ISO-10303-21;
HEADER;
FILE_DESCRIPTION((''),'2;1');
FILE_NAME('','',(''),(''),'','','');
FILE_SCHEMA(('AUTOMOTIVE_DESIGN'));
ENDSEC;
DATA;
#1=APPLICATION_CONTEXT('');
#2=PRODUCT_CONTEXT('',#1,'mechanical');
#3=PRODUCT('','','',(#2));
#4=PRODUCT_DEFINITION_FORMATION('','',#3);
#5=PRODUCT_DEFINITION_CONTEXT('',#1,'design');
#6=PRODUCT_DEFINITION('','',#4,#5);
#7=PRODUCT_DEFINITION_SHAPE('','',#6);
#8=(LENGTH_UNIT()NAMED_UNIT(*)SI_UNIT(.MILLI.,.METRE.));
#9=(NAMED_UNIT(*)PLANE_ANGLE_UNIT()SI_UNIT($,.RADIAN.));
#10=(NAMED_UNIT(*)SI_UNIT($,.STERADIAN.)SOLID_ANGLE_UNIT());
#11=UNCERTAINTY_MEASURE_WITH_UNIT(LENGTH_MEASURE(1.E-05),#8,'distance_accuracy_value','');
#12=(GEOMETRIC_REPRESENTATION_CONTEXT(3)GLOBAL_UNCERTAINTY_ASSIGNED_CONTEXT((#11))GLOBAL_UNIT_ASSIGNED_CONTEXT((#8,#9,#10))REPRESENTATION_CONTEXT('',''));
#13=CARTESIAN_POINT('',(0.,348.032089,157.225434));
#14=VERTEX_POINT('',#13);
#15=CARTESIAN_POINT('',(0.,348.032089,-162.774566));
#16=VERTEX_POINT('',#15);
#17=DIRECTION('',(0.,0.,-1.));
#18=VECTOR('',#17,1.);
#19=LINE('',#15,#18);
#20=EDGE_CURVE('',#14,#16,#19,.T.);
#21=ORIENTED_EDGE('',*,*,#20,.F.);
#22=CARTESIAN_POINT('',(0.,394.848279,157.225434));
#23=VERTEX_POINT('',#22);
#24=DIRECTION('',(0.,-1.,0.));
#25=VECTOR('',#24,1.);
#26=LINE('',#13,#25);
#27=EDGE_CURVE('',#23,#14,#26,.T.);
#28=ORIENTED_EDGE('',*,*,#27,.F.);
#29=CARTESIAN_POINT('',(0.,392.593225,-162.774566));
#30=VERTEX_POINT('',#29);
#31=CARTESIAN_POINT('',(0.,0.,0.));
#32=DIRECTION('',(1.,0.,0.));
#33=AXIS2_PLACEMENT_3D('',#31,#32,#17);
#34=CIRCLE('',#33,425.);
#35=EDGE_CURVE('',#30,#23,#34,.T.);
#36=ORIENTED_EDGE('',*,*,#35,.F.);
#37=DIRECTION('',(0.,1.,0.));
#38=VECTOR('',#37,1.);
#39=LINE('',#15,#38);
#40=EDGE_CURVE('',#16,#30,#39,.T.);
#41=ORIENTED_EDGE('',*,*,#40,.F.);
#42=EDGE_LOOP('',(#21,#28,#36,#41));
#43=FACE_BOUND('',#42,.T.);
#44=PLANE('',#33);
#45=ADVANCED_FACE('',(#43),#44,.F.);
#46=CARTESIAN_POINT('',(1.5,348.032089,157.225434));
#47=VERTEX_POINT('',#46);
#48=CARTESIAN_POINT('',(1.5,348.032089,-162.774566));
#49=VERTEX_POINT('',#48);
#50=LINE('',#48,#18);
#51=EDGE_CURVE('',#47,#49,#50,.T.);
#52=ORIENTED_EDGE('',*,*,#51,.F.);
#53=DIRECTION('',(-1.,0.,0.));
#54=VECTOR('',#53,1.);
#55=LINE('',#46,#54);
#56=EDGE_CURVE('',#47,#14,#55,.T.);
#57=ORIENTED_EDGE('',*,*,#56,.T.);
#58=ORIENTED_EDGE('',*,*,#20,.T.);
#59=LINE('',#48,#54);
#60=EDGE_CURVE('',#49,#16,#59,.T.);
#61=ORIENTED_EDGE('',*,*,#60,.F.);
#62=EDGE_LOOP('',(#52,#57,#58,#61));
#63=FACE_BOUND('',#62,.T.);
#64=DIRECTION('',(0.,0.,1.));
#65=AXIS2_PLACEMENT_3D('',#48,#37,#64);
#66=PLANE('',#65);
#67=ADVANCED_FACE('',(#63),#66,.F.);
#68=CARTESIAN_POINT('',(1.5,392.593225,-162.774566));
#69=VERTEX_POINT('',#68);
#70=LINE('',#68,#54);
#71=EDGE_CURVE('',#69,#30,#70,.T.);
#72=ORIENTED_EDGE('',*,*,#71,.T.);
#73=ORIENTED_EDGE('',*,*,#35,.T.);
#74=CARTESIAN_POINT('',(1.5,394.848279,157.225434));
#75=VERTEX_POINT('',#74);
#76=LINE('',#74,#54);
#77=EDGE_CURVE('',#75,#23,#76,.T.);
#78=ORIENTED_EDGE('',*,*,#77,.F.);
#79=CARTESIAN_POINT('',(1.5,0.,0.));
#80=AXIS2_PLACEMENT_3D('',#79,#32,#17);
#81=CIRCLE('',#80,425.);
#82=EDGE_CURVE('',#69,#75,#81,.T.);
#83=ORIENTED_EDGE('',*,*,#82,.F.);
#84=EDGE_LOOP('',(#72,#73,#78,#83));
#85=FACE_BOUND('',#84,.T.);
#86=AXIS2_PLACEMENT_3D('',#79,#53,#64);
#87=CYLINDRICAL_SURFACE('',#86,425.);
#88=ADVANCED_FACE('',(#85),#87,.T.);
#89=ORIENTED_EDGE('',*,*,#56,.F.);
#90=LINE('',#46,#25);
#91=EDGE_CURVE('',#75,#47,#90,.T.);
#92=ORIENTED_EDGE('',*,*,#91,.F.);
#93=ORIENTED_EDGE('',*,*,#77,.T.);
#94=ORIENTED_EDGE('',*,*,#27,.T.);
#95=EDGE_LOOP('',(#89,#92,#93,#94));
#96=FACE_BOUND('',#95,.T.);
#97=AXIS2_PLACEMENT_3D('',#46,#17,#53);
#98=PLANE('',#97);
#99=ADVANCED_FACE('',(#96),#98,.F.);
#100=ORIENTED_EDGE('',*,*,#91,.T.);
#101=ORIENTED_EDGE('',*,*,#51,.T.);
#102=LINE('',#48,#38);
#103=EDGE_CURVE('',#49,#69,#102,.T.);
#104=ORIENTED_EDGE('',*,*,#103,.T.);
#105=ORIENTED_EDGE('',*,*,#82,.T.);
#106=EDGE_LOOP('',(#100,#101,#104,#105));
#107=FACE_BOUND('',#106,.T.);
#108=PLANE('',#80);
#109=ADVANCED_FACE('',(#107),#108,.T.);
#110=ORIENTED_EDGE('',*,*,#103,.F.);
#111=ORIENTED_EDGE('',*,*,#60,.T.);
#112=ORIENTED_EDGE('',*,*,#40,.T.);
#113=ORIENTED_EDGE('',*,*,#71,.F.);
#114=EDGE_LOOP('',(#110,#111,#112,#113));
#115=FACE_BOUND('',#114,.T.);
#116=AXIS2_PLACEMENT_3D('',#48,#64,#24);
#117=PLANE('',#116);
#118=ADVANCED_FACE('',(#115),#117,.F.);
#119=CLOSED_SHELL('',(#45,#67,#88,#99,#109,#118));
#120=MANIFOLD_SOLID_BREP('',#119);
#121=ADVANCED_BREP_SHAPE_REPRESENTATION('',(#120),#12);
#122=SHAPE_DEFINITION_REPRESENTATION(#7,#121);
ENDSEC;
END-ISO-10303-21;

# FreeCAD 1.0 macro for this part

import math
import FreeCAD as App
import Part
import Sketcher

doc = App.newDocument("Part")
body = doc.addObject("PartDesign::Body", "Body")

sketch1 = body.newObject("Sketcher::SketchObject", "Sketch")
sketch1.AttachmentSupport = (doc.getObject("YZ_Plane"), [""])
sketch1.MapMode = "FlatFace"
sketch1.addGeometry([
    Part.LineSegment(App.Vector(348, 157, 0), App.Vector(348, -163, 0)),
    Part.LineSegment(App.Vector(348, -163, 0), App.Vector(393, -163, 0)),
    Part.ArcOfCircle(Part.Circle(App.Vector(0, 0, 0), App.Vector(0, 0, 1), 425), math.radians(-23), math.radians(22)),
    Part.LineSegment(App.Vector(395, 157, 0), App.Vector(348, 157, 0)),
], False)
sketch1.addConstraint([
    Sketcher.Constraint("Coincident", 0, 2, 1, 1),
    Sketcher.Constraint("Coincident", 1, 2, 2, 1),
    Sketcher.Constraint("Coincident", 2, 2, 3, 1),
    Sketcher.Constraint("Coincident", 3, 2, 0, 1),
    Sketcher.Constraint("Vertical", 0),
    Sketcher.Constraint("Horizontal", 1),
    Sketcher.Constraint("Horizontal", 3),
    Sketcher.Constraint("Coincident", 2, 3, -1, 1),
    Sketcher.Constraint("Radius", 2, 425.0),
    Sketcher.Constraint("DistanceY", 0, 2, 0, 1, 320.0),
    Sketcher.Constraint("DistanceX", 3, 2, 3, 1, 46.816189),
    Sketcher.Constraint("DistanceX", 1, 1, 1, 2, 44.561136),
])
pad1 = body.newObject("PartDesign::Pad", "Pad")
pad1.Profile = sketch1
pad1.Length = 1.5

doc.recompute()
